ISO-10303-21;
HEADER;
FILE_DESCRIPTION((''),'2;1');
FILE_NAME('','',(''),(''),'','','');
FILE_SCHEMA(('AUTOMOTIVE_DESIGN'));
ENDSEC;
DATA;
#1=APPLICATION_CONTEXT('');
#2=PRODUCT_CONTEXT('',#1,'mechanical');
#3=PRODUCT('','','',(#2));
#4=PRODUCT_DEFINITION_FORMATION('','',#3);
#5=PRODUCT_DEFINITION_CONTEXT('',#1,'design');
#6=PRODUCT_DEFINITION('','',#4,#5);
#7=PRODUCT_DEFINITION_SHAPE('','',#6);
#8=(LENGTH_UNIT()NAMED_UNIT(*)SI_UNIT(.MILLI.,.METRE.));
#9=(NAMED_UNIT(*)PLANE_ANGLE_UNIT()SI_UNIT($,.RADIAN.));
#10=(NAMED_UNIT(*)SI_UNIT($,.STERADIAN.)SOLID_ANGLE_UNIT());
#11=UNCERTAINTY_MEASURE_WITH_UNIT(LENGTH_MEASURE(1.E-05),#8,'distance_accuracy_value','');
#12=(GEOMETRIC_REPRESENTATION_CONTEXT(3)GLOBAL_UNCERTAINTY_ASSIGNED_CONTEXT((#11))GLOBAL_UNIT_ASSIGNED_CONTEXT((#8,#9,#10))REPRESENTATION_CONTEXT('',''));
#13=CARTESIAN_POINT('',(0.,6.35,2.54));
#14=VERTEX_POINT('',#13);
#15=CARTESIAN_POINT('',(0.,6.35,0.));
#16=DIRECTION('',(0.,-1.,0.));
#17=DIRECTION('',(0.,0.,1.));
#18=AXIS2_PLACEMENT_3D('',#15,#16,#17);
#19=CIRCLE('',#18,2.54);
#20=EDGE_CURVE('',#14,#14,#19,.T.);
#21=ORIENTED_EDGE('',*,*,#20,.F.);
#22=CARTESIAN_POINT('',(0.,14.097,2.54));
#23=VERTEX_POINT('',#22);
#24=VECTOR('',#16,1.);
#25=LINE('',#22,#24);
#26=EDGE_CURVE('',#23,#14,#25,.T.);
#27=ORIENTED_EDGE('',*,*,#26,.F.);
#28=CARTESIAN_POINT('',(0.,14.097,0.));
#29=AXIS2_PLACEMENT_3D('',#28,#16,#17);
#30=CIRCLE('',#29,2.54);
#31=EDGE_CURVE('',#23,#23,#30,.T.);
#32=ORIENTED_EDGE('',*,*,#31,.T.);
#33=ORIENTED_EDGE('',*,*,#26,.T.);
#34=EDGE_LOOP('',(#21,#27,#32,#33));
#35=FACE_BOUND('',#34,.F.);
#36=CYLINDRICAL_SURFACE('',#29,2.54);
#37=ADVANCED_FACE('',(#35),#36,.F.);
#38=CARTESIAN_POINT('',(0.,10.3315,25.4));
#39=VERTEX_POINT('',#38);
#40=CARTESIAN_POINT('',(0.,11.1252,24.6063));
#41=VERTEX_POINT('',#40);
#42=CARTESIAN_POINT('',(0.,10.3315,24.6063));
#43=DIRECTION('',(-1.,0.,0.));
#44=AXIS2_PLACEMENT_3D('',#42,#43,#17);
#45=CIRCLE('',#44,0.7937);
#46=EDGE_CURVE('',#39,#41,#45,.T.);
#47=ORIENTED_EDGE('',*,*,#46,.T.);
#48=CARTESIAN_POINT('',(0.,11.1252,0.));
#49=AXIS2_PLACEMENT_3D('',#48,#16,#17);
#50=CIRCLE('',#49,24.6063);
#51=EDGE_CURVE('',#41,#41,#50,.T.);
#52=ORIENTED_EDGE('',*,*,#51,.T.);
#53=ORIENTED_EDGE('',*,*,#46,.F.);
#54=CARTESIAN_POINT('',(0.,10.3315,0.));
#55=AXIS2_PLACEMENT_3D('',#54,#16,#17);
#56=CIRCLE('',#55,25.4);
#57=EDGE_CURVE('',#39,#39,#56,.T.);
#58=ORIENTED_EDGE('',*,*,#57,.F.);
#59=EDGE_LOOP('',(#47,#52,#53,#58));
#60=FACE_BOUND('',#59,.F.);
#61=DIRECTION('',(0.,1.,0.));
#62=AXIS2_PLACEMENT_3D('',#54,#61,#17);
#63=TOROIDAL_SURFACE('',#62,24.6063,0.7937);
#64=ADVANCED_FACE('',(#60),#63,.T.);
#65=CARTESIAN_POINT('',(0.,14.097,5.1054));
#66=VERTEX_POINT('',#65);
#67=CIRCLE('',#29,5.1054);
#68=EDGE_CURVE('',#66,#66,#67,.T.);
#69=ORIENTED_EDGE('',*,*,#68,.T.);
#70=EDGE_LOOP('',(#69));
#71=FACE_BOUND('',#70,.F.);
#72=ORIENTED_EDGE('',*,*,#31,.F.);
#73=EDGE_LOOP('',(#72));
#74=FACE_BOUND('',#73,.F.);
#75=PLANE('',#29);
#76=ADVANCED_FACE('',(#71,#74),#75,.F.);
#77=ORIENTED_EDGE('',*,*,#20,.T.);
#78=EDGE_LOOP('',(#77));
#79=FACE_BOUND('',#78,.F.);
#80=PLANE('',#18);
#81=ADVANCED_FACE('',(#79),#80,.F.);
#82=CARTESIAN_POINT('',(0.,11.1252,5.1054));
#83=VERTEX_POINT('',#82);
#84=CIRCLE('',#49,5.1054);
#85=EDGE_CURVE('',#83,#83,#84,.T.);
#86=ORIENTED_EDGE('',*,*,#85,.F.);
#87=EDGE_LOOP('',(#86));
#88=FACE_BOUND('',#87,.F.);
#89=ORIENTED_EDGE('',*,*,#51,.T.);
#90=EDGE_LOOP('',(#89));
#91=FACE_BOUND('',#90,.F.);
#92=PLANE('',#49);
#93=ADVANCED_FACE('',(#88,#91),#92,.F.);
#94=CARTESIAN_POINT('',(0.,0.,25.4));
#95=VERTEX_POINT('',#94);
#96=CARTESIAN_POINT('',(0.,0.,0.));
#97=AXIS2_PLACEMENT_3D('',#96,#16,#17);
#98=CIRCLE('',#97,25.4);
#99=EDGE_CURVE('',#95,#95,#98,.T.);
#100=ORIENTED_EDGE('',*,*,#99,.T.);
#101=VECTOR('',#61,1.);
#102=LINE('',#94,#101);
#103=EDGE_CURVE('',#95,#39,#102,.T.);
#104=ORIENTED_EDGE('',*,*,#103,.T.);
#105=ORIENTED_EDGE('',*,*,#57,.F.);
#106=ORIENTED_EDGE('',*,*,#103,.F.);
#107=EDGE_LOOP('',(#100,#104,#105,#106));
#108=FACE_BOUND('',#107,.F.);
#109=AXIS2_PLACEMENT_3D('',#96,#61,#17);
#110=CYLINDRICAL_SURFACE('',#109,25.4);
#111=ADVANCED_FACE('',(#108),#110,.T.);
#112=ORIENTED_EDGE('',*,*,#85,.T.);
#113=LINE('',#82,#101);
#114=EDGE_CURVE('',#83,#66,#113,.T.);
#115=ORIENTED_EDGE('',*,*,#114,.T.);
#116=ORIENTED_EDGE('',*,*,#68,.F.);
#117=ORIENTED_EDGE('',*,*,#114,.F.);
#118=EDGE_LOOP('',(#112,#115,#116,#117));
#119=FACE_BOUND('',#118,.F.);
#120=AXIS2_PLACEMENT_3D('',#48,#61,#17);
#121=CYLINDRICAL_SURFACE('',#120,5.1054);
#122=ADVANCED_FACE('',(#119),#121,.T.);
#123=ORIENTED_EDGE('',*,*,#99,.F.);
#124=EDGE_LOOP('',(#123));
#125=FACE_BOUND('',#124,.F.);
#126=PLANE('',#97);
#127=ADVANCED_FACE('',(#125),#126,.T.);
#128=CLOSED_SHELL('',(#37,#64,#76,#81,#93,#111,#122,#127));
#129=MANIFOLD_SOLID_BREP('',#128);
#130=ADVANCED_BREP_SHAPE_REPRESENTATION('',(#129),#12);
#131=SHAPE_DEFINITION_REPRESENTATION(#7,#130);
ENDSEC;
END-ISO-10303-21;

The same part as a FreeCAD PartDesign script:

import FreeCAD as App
import Part
import Sketcher

V = App.Vector
Q = App.Units.Quantity


def edges_at(feature, points):
    """Names of the edges that pass closest to the given points."""
    edges = feature.Shape.Edges
    near = lambda p: min(range(len(edges)), key=lambda i: edges[i].distToShape(Part.Vertex(*p))[0])
    return sorted({f"Edge{near(p) + 1}" for p in points})

doc = App.newDocument("Part")
params = doc.addObject("Spreadsheet::Sheet", "Params")
for row, (alias, value) in enumerate([
    ("sketch1_width", "0.25 in"),
    ("sketch1_width2", "0.438 in"),
    ("sketch1_height", "1 in"),
    ("sketch1_height2", "0.1 in"),
    ("sketch1_height3", "0.101 in"),
    ("revolution_angle", "360 deg"),
    ("fillet_radius", "0.031248 in"),
], start=1):
    params.set(f"A{row}", alias)
    params.set(f"B{row}", "=" + value)
    params.setAlias(f"B{row}", alias)

body = doc.addObject("PartDesign::Body", "Body")

sketch1 = body.newObject("Sketcher::SketchObject", "Sketch")
sketch1.AttachmentSupport = (doc.getObject("YZ_Plane"), [""])
sketch1.MapMode = "FlatFace"
sketch1.addGeometry(Part.LineSegment(V(0, 25.4, 0), V(0, 0, 0)), False)
sketch1.addGeometry(Part.LineSegment(V(0, 0, 0), V(6.3, 0, 0)), False)
sketch1.addGeometry(Part.LineSegment(V(6.3, 0, 0), V(6.3, 2.5, 0)), False)
sketch1.addGeometry(Part.LineSegment(V(6.3, 2.5, 0), V(14.1, 2.5, 0)), False)
sketch1.addGeometry(Part.LineSegment(V(14.1, 2.5, 0), V(14.1, 5.1, 0)), False)
sketch1.addGeometry(Part.LineSegment(V(14.1, 5.1, 0), V(11.1, 5.1, 0)), False)
sketch1.addGeometry(Part.LineSegment(V(11.1, 5.1, 0), V(11.1, 25.4, 0)), False)
sketch1.addGeometry(Part.LineSegment(V(11.1, 25.4, 0), V(0, 25.4, 0)), False)
sketch1.addConstraint(Sketcher.Constraint("Coincident", 0, 2, 1, 1))
sketch1.addConstraint(Sketcher.Constraint("Coincident", 1, 2, 2, 1))
sketch1.addConstraint(Sketcher.Constraint("Coincident", 2, 2, 3, 1))
sketch1.addConstraint(Sketcher.Constraint("Coincident", 3, 2, 4, 1))
sketch1.addConstraint(Sketcher.Constraint("Coincident", 4, 2, 5, 1))
sketch1.addConstraint(Sketcher.Constraint("Coincident", 5, 2, 6, 1))
sketch1.addConstraint(Sketcher.Constraint("Coincident", 6, 2, 7, 1))
sketch1.addConstraint(Sketcher.Constraint("Coincident", 7, 2, 0, 1))
sketch1.addConstraint(Sketcher.Constraint("Vertical", 0))
sketch1.addConstraint(Sketcher.Constraint("Horizontal", 1))
sketch1.addConstraint(Sketcher.Constraint("Vertical", 2))
sketch1.addConstraint(Sketcher.Constraint("Horizontal", 3))
sketch1.addConstraint(Sketcher.Constraint("Vertical", 4))
sketch1.addConstraint(Sketcher.Constraint("Horizontal", 5))
sketch1.addConstraint(Sketcher.Constraint("Vertical", 6))
sketch1.addConstraint(Sketcher.Constraint("Horizontal", 7))
sketch1.addConstraint(Sketcher.Constraint("Coincident", 0, 2, -1, 1))
sketch1.addConstraint(Sketcher.Constraint("DistanceX", 1, 1, 1, 2, Q("0.25 in")))
sketch1.addConstraint(Sketcher.Constraint("DistanceX", 7, 2, 7, 1, Q("0.438 in")))
sketch1.addConstraint(Sketcher.Constraint("DistanceY", 0, 2, 0, 1, Q("1 in")))
sketch1.addConstraint(Sketcher.Constraint("DistanceY", 2, 1, 2, 2, Q("0.1 in")))
sketch1.addConstraint(Sketcher.Constraint("DistanceX", -1, 1, 3, 2, Q("0.555 in")))
sketch1.addConstraint(Sketcher.Constraint("DistanceY", 4, 1, 4, 2, Q("0.101 in")))
sketch1.setExpression("Constraints[17]", "Params.sketch1_width")
sketch1.setExpression("Constraints[18]", "Params.sketch1_width2")
sketch1.setExpression("Constraints[19]", "Params.sketch1_height")
sketch1.setExpression("Constraints[20]", "Params.sketch1_height2")
sketch1.setExpression("Constraints[22]", "Params.sketch1_height3")
revolution = body.newObject("PartDesign::Revolution", "Revolution")
revolution.Profile = sketch1
revolution.ReferenceAxis = (sketch1, ["H_Axis"])
revolution.setExpression("Angle", "Params.revolution_angle")
doc.recompute()

fillet = body.newObject("PartDesign::Fillet", "Fillet")
fillet.Base = (revolution, edges_at(revolution, [(0, 11.125, -25.4)]))
fillet.setExpression("Radius", "Params.fillet_radius")

doc.recompute()
